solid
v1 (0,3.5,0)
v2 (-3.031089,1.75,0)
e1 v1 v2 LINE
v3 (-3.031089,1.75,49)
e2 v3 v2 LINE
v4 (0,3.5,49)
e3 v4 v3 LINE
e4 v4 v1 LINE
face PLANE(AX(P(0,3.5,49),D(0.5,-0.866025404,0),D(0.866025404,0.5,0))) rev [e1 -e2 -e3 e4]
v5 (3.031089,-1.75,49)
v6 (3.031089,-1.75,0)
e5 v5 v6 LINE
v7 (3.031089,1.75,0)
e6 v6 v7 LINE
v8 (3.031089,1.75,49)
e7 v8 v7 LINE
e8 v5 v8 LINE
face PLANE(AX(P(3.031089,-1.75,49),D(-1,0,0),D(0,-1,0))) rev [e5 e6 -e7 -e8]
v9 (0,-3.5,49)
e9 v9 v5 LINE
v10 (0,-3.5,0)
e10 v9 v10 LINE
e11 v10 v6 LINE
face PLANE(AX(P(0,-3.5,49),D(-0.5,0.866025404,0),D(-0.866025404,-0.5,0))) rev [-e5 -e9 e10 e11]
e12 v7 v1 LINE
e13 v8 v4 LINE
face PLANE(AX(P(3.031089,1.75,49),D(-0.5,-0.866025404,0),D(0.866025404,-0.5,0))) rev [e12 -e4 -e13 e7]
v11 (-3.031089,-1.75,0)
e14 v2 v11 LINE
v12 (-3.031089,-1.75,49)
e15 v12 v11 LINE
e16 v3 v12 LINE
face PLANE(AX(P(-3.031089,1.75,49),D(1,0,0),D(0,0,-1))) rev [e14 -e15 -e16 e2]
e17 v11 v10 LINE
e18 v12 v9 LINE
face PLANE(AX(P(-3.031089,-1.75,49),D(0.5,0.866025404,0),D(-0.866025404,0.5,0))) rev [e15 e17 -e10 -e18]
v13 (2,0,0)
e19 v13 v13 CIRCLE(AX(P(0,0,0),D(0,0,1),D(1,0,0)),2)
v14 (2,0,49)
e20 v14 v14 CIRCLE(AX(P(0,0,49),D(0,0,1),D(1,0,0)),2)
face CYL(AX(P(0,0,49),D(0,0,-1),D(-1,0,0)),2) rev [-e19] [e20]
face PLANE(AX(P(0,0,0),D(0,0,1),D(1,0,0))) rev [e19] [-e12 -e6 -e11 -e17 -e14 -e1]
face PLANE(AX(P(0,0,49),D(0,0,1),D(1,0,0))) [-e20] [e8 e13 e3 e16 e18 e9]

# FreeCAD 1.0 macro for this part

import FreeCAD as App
import Part
import Sketcher
from FreeCAD import Vector
Q = App.Units.Quantity

doc = App.newDocument("Part")
body = doc.addObject("PartDesign::Body", "Body")

# Sketch on XY plane
sketch1 = doc.addObject("Sketcher::SketchObject", "Sketch")
body.addObject(sketch1)
sketch1.AttachmentSupport = (doc.XY_Plane, [""])
sketch1.MapMode = "FlatFace"
sketch1.addGeometry([
    Part.LineSegment(Vector(3.031089, -1.75, 0), Vector(3.031089, 1.75, 0)),  # 0
    Part.LineSegment(Vector(3.031089, 1.75, 0), Vector(0, 3.5, 0)),  # 1
    Part.LineSegment(Vector(0, 3.5, 0), Vector(-3.031089, 1.75, 0)),  # 2
    Part.LineSegment(Vector(-3.031089, 1.75, 0), Vector(-3.031089, -1.75, 0)),  # 3
    Part.LineSegment(Vector(-3.031089, -1.75, 0), Vector(0, -3.5, 0)),  # 4
    Part.LineSegment(Vector(0, -3.5, 0), Vector(3.031089, -1.75, 0)),  # 5
    Part.Circle(Vector(0, 0, 0), Vector(0, 0, 1), 2),  # 6
], False)
sketch1.addConstraint([
    Sketcher.Constraint("Coincident", 0, 2, 1, 1),
    Sketcher.Constraint("Coincident", 1, 2, 2, 1),
    Sketcher.Constraint("Coincident", 2, 2, 3, 1),
    Sketcher.Constraint("Coincident", 3, 2, 4, 1),
    Sketcher.Constraint("Coincident", 4, 2, 5, 1),
    Sketcher.Constraint("Coincident", 5, 2, 0, 1),
    Sketcher.Constraint("Vertical", 0),
    Sketcher.Constraint("Vertical", 3),
    Sketcher.Constraint("Coincident", 6, 3, -1, 1),
    Sketcher.Constraint("Symmetric", 0, 2, 3, 2, -1, 1),
    Sketcher.Constraint("Symmetric", 1, 2, 4, 2, -1, 1),
    Sketcher.Constraint("PointOnObject", 1, 2, -2),
    Sketcher.Constraint("Parallel", 2, 5),
    Sketcher.Constraint("Horizontal", 0, 2, 2, 2),
    Sketcher.Constraint("Diameter", 6, Q("4 mm")),
    Sketcher.Constraint("Angle", 1, Q("150 deg")),
    Sketcher.Constraint("DistanceY", 0, 1, 0, 2, Q("3.5 mm")),
    Sketcher.Constraint("DistanceY", 4, 2, 1, 2, Q("7 mm")),
])
pad1 = doc.addObject("PartDesign::Pad", "Pad")
body.addObject(pad1)
pad1.Profile = sketch1
pad1.Length = 49

doc.recompute()
